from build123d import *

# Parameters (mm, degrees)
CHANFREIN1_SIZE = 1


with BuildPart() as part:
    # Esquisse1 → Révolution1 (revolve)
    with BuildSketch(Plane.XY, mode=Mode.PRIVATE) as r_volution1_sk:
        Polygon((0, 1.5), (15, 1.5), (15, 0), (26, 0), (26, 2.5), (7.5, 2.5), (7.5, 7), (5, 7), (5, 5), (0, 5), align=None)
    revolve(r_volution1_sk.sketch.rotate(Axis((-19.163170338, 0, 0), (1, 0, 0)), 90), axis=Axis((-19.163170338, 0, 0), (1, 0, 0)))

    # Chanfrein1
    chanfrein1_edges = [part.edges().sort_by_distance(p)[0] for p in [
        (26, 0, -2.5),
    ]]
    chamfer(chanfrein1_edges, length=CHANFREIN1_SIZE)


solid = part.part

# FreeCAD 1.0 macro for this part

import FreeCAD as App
import Part
import Sketcher

V = App.Vector
Q = App.Units.Quantity


def edges_at(feature, points):
    """Names of the edges that pass closest to the given points."""
    edges = feature.Shape.Edges
    near = lambda p: min(range(len(edges)), key=lambda i: edges[i].distToShape(Part.Vertex(*p))[0])
    return sorted({f"Edge{near(p) + 1}" for p in points})

doc = App.newDocument("Part")
body = doc.addObject("PartDesign::Body", "Body")

sketch1 = body.newObject("Sketcher::SketchObject", "Sketch")
sketch1.AttachmentSupport = (doc.getObject("XY_Plane"), [""])
sketch1.MapMode = "FlatFace"
sketch1.addGeometry(Part.LineSegment(V(0, 1.5, 0), V(15, 1.5, 0)), False)
sketch1.addGeometry(Part.LineSegment(V(15, 1.5, 0), V(15, 0, 0)), False)
sketch1.addGeometry(Part.LineSegment(V(15, 0, 0), V(26, 0, 0)), False)
sketch1.addGeometry(Part.LineSegment(V(26, 0, 0), V(26, 2.5, 0)), False)
sketch1.addGeometry(Part.LineSegment(V(26, 2.5, 0), V(7.5, 2.5, 0)), False)
sketch1.addGeometry(Part.LineSegment(V(7.5, 2.5, 0), V(7.5, 7, 0)), False)
sketch1.addGeometry(Part.LineSegment(V(7.5, 7, 0), V(5, 7, 0)), False)
sketch1.addGeometry(Part.LineSegment(V(5, 7, 0), V(5, 5, 0)), False)
sketch1.addGeometry(Part.LineSegment(V(5, 5, 0), V(0, 5, 0)), False)
sketch1.addGeometry(Part.LineSegment(V(0, 5, 0), V(0, 1.5, 0)), False)
sketch1.addConstraint(Sketcher.Constraint("Coincident", 0, 2, 1, 1))
sketch1.addConstraint(Sketcher.Constraint("Coincident", 1, 2, 2, 1))
sketch1.addConstraint(Sketcher.Constraint("Coincident", 2, 2, 3, 1))
sketch1.addConstraint(Sketcher.Constraint("Coincident", 3, 2, 4, 1))
sketch1.addConstraint(Sketcher.Constraint("Coincident", 4, 2, 5, 1))
sketch1.addConstraint(Sketcher.Constraint("Coincident", 5, 2, 6, 1))
sketch1.addConstraint(Sketcher.Constraint("Coincident", 6, 2, 7, 1))
sketch1.addConstraint(Sketcher.Constraint("Coincident", 7, 2, 8, 1))
sketch1.addConstraint(Sketcher.Constraint("Coincident", 8, 2, 9, 1))
sketch1.addConstraint(Sketcher.Constraint("Coincident", 9, 2, 0, 1))
sketch1.addConstraint(Sketcher.Constraint("Horizontal", 0))
sketch1.addConstraint(Sketcher.Constraint("Vertical", 1))
sketch1.addConstraint(Sketcher.Constraint("Horizontal", 2))
sketch1.addConstraint(Sketcher.Constraint("Vertical", 3))
sketch1.addConstraint(Sketcher.Constraint("Horizontal", 4))
sketch1.addConstraint(Sketcher.Constraint("Vertical", 5))
sketch1.addConstraint(Sketcher.Constraint("Horizontal", 6))
sketch1.addConstraint(Sketcher.Constraint("Vertical", 7))
sketch1.addConstraint(Sketcher.Constraint("Horizontal", 8))
sketch1.addConstraint(Sketcher.Constraint("Vertical", 9))
sketch1.addConstraint(Sketcher.Constraint("PointOnObject", 1, 2, -1))
sketch1.addConstraint(Sketcher.Constraint("PointOnObject", 8, 2, -2))
sketch1.addConstraint(Sketcher.Constraint("Equal", 6, 3))
sketch1.addConstraint(Sketcher.Constraint("DistanceX", 0, 1, 0, 2, Q("15 mm")))
sketch1.addConstraint(Sketcher.Constraint("DistanceX", 2, 1, 2, 2, Q("11 mm")))
sketch1.addConstraint(Sketcher.Constraint("DistanceX", 8, 2, 8, 1, Q("5 mm")))
sketch1.addConstraint(Sketcher.Constraint("DistanceY", 7, 2, 7, 1, Q("2 mm")))
sketch1.addConstraint(Sketcher.Constraint("DistanceX", 4, 2, 4, 1, Q("18.5 mm")))
sketch1.addConstraint(Sketcher.Constraint("DistanceY", 1, 2, 1, 1, Q("1.5 mm")))
sketch1.addConstraint(Sketcher.Constraint("DistanceY", 5, 1, 5, 2, Q("4.5 mm")))
revolution = body.newObject("PartDesign::Revolution", "Revolution")
revolution.Profile = sketch1
revolution.ReferenceAxis = (sketch1, ["H_Axis"])
revolution.Angle = 360
doc.recompute()

chamfer = body.newObject("PartDesign::Chamfer", "Chamfer")
chamfer.Base = (revolution, edges_at(revolution, [(26, 0, -2.5)]))
chamfer.Size = 1

doc.recompute()
